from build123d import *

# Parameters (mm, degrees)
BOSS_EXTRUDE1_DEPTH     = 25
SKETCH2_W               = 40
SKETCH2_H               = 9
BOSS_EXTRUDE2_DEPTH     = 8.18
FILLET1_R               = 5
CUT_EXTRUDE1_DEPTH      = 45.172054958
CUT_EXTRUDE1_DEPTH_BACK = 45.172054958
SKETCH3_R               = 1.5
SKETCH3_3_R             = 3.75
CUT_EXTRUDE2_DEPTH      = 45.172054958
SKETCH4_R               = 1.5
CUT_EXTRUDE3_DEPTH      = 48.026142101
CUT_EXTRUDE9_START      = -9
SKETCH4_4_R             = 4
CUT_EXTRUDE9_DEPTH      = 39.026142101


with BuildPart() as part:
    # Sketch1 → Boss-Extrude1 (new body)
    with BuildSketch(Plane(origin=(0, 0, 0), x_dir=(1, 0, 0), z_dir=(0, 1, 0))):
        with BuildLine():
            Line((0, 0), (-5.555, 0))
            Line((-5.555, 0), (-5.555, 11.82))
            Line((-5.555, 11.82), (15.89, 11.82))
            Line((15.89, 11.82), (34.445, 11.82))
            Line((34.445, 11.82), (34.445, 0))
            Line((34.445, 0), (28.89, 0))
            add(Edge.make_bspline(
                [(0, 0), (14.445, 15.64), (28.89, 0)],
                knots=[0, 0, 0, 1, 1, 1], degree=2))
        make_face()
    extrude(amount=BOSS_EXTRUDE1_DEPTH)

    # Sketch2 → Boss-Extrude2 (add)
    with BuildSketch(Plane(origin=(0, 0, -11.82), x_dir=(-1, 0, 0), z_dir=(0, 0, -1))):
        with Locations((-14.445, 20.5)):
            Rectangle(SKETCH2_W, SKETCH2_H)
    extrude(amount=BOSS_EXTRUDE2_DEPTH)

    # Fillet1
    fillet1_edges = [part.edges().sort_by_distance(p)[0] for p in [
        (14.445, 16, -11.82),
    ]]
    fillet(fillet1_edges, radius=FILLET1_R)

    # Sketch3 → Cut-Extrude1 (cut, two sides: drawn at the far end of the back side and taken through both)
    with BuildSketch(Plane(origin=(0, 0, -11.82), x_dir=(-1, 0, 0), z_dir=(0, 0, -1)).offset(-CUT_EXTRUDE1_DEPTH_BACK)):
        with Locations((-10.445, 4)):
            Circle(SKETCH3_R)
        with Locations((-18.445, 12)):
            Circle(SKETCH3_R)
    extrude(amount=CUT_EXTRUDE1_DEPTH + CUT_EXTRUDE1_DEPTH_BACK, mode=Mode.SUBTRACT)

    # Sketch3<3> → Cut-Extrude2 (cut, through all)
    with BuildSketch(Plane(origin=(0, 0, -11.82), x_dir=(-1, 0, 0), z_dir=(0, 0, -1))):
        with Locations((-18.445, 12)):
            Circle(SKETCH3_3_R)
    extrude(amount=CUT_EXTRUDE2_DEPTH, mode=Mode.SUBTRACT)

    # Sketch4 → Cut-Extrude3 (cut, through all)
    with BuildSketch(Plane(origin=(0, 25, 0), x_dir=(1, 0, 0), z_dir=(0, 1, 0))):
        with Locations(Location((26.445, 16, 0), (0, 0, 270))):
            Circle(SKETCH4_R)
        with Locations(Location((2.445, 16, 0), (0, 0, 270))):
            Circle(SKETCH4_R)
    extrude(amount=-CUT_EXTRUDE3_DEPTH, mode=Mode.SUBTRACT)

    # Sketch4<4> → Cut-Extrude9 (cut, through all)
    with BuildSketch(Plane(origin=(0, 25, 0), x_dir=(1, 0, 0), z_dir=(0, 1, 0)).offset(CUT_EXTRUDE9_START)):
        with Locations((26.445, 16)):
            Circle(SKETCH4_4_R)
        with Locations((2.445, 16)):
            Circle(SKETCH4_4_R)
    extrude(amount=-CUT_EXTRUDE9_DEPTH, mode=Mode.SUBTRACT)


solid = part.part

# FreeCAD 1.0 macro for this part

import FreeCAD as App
import Part
import Sketcher

V = App.Vector


def edges_at(feature, points):
    """Names of the edges that pass closest to the given points."""
    edges = feature.Shape.Edges
    near = lambda p: min(range(len(edges)), key=lambda i: edges[i].distToShape(Part.Vertex(*p))[0])
    return sorted({f"Edge{near(p) + 1}" for p in points})

doc = App.newDocument("Part")
body = doc.addObject("PartDesign::Body", "Body")

sketch1 = body.newObject("Sketcher::SketchObject", "Sketch")
sketch1.AttachmentSupport = (doc.getObject("XZ_Plane"), [""])
sketch1.MapMode = "FlatFace"
sketch1.addGeometry([
    Part.LineSegment(V(-5.555, 0, 0), V(0, 0, 0)),
    Part.BSplineCurve([V(0, 0, 0), V(14.445, -15.64, 0), V(28.89, 0, 0)], [3, 3], [0, 1], False, 2, [1, 1, 1], False),
    Part.LineSegment(V(28.89, 0, 0), V(34.445, 0, 0)),
    Part.LineSegment(V(34.445, 0, 0), V(34.445, -11.82, 0)),
    Part.LineSegment(V(34.445, -11.82, 0), V(-5.555, -11.82, 0)),
    Part.LineSegment(V(-5.555, -11.82, 0), V(-5.555, 0, 0)),
], False)
sketch1.addConstraint([
    Sketcher.Constraint("Block", 1),
    Sketcher.Constraint("Coincident", 0, 2, 1, 1),
    Sketcher.Constraint("Coincident", 1, 2, 2, 1),
    Sketcher.Constraint("Coincident", 2, 2, 3, 1),
    Sketcher.Constraint("Coincident", 3, 2, 4, 1),
    Sketcher.Constraint("Coincident", 4, 2, 5, 1),
    Sketcher.Constraint("Coincident", 5, 2, 0, 1),
    Sketcher.Constraint("Horizontal", 0),
    Sketcher.Constraint("Horizontal", 2),
    Sketcher.Constraint("Vertical", 3),
    Sketcher.Constraint("Horizontal", 4),
    Sketcher.Constraint("Vertical", 5),
    Sketcher.Constraint("Equal", 0, 2),
    Sketcher.Constraint("DistanceX", 4, 2, 4, 1, 40.0),
    Sketcher.Constraint("DistanceY", 3, 2, 3, 1, 11.82),
])
pad1 = body.newObject("PartDesign::Pad", "Pad")
pad1.Profile = sketch1
pad1.Length = 25
pad1.Reversed = True

sketch2 = body.newObject("Sketcher::SketchObject", "Sketch001")
sketch2.AttachmentSupport = (doc.getObject("XY_Plane"), [""])
sketch2.MapMode = "FlatFace"
sketch2.AttachmentOffset = App.Placement(V(0, 0, -11.82), App.Rotation())
sketch2.addGeometry([
    Part.LineSegment(V(34.445, 25, 0), V(34.445, 16, 0)),
    Part.LineSegment(V(34.445, 16, 0), V(-5.555, 16, 0)),
    Part.LineSegment(V(-5.555, 16, 0), V(-5.555, 25, 0)),
    Part.LineSegment(V(-5.555, 25, 0), V(34.445, 25, 0)),
], False)
sketch2.addConstraint([
    Sketcher.Constraint("Coincident", 0, 2, 1, 1),
    Sketcher.Constraint("Coincident", 1, 2, 2, 1),
    Sketcher.Constraint("Coincident", 2, 2, 3, 1),
    Sketcher.Constraint("Coincident", 3, 2, 0, 1),
    Sketcher.Constraint("Vertical", 0),
    Sketcher.Constraint("Horizontal", 1),
    Sketcher.Constraint("Vertical", 2),
    Sketcher.Constraint("Horizontal", 3),
    Sketcher.Constraint("DistanceX", 1, 2, 1, 1, 40.0),
    Sketcher.Constraint("DistanceY", 0, 2, 0, 1, 9.0),
    Sketcher.Constraint("DistanceY", -1, 1, 0, 2, 16.0),
    Sketcher.Constraint("DistanceX", -1, 1, 0, 2, 34.445),
])
pad2 = body.newObject("PartDesign::Pad", "Pad001")
pad2.Profile = sketch2
pad2.Length = 8.18
pad2.Reversed = True
doc.recompute()

fillet = body.newObject("PartDesign::Fillet", "Fillet")
fillet.Base = (pad2, edges_at(pad2, [(14.445, 16, -11.82)]))
fillet.Radius = 5

sketch3 = body.newObject("Sketcher::SketchObject", "Sketch002")
sketch3.AttachmentSupport = (doc.getObject("XY_Plane"), [""])
sketch3.MapMode = "FlatFace"
sketch3.AttachmentOffset = App.Placement(V(0, 0, -11.82), App.Rotation())
sketch3.addGeometry([
    Part.Circle(V(10.445, 4, 0), V(0, 0, 1), 1.5),
    Part.Circle(V(18.445, 12, 0), V(0, 0, 1), 1.5),
], False)
sketch3.addConstraint([
    Sketcher.Constraint("Equal", 0, 1),
    Sketcher.Constraint("Diameter", 0, 3.0),
    Sketcher.Constraint("DistanceY", -1, 1, 0, 3, 4.0),
    Sketcher.Constraint("DistanceY", -1, 1, 1, 3, 12.0),
    Sketcher.Constraint("DistanceX", 0, 3, 1, 3, 8.0),
    Sketcher.Constraint("DistanceX", -1, 1, 0, 3, 10.445),
])
pocket1 = body.newObject("PartDesign::Pocket", "Pocket")
pocket1.Profile = sketch3
pocket1.Type = "ThroughAll"
pocket1.Midplane = True

sketch4 = body.newObject("Sketcher::SketchObject", "Sketch003")
sketch4.AttachmentSupport = (doc.getObject("XY_Plane"), [""])
sketch4.MapMode = "FlatFace"
sketch4.AttachmentOffset = App.Placement(V(0, 0, -11.82), App.Rotation())
sketch4.addGeometry(Part.Circle(V(18.445, 12, 0), V(0, 0, 1), 3.75), False)
sketch4.addConstraint([
    Sketcher.Constraint("Diameter", 0, 7.5),
    Sketcher.Constraint("DistanceY", -1, 1, 0, 3, 12.0),
    Sketcher.Constraint("DistanceX", -1, 1, 0, 3, 18.445),
])
pocket2 = body.newObject("PartDesign::Pocket", "Pocket001")
pocket2.Profile = sketch4
pocket2.Type = "ThroughAll"

sketch5 = body.newObject("Sketcher::SketchObject", "Sketch004")
sketch5.AttachmentSupport = (doc.getObject("XZ_Plane"), [""])
sketch5.MapMode = "FlatFace"
sketch5.AttachmentOffset = App.Placement(V(0, 0, -25), App.Rotation())
sketch5.addGeometry([
    Part.Circle(V(26.445, -16, 0), V(0, 0, 1), 1.5),
    Part.Circle(V(2.445, -16, 0), V(0, 0, 1), 1.5),
], False)
sketch5.addConstraint([
    Sketcher.Constraint("Equal", 0, 1),
    Sketcher.Constraint("Horizontal", 0, 3, 1, 3),
    Sketcher.Constraint("Diameter", 0, 3.0),
    Sketcher.Constraint("DistanceY", 0, 3, -1, 1, 16.0),
    Sketcher.Constraint("DistanceX", 1, 3, 0, 3, 24.0),
    Sketcher.Constraint("DistanceX", -1, 1, 0, 3, 26.445),
])
pocket3 = body.newObject("PartDesign::Pocket", "Pocket002")
pocket3.Profile = sketch5
pocket3.Type = "ThroughAll"
pocket3.Reversed = True

sketch6 = body.newObject("Sketcher::SketchObject", "Sketch005")
sketch6.AttachmentSupport = (doc.getObject("XZ_Plane"), [""])
sketch6.MapMode = "FlatFace"
sketch6.AttachmentOffset = App.Placement(V(0, 0, -16), App.Rotation())
sketch6.addGeometry([
    Part.Circle(V(26.445, -16, 0), V(0, 0, 1), 4),
    Part.Circle(V(2.445, -16, 0), V(0, 0, 1), 4),
], False)
sketch6.addConstraint([
    Sketcher.Constraint("Equal", 0, 1),
    Sketcher.Constraint("Horizontal", 0, 3, 1, 3),
    Sketcher.Constraint("Diameter", 0, 8.0),
    Sketcher.Constraint("DistanceY", 0, 3, -1, 1, 16.0),
    Sketcher.Constraint("DistanceX", 1, 3, 0, 3, 24.0),
    Sketcher.Constraint("DistanceX", -1, 1, 0, 3, 26.445),
])
pocket4 = body.newObject("PartDesign::Pocket", "Pocket003")
pocket4.Profile = sketch6
pocket4.Type = "ThroughAll"
pocket4.Reversed = True

doc.recompute()
